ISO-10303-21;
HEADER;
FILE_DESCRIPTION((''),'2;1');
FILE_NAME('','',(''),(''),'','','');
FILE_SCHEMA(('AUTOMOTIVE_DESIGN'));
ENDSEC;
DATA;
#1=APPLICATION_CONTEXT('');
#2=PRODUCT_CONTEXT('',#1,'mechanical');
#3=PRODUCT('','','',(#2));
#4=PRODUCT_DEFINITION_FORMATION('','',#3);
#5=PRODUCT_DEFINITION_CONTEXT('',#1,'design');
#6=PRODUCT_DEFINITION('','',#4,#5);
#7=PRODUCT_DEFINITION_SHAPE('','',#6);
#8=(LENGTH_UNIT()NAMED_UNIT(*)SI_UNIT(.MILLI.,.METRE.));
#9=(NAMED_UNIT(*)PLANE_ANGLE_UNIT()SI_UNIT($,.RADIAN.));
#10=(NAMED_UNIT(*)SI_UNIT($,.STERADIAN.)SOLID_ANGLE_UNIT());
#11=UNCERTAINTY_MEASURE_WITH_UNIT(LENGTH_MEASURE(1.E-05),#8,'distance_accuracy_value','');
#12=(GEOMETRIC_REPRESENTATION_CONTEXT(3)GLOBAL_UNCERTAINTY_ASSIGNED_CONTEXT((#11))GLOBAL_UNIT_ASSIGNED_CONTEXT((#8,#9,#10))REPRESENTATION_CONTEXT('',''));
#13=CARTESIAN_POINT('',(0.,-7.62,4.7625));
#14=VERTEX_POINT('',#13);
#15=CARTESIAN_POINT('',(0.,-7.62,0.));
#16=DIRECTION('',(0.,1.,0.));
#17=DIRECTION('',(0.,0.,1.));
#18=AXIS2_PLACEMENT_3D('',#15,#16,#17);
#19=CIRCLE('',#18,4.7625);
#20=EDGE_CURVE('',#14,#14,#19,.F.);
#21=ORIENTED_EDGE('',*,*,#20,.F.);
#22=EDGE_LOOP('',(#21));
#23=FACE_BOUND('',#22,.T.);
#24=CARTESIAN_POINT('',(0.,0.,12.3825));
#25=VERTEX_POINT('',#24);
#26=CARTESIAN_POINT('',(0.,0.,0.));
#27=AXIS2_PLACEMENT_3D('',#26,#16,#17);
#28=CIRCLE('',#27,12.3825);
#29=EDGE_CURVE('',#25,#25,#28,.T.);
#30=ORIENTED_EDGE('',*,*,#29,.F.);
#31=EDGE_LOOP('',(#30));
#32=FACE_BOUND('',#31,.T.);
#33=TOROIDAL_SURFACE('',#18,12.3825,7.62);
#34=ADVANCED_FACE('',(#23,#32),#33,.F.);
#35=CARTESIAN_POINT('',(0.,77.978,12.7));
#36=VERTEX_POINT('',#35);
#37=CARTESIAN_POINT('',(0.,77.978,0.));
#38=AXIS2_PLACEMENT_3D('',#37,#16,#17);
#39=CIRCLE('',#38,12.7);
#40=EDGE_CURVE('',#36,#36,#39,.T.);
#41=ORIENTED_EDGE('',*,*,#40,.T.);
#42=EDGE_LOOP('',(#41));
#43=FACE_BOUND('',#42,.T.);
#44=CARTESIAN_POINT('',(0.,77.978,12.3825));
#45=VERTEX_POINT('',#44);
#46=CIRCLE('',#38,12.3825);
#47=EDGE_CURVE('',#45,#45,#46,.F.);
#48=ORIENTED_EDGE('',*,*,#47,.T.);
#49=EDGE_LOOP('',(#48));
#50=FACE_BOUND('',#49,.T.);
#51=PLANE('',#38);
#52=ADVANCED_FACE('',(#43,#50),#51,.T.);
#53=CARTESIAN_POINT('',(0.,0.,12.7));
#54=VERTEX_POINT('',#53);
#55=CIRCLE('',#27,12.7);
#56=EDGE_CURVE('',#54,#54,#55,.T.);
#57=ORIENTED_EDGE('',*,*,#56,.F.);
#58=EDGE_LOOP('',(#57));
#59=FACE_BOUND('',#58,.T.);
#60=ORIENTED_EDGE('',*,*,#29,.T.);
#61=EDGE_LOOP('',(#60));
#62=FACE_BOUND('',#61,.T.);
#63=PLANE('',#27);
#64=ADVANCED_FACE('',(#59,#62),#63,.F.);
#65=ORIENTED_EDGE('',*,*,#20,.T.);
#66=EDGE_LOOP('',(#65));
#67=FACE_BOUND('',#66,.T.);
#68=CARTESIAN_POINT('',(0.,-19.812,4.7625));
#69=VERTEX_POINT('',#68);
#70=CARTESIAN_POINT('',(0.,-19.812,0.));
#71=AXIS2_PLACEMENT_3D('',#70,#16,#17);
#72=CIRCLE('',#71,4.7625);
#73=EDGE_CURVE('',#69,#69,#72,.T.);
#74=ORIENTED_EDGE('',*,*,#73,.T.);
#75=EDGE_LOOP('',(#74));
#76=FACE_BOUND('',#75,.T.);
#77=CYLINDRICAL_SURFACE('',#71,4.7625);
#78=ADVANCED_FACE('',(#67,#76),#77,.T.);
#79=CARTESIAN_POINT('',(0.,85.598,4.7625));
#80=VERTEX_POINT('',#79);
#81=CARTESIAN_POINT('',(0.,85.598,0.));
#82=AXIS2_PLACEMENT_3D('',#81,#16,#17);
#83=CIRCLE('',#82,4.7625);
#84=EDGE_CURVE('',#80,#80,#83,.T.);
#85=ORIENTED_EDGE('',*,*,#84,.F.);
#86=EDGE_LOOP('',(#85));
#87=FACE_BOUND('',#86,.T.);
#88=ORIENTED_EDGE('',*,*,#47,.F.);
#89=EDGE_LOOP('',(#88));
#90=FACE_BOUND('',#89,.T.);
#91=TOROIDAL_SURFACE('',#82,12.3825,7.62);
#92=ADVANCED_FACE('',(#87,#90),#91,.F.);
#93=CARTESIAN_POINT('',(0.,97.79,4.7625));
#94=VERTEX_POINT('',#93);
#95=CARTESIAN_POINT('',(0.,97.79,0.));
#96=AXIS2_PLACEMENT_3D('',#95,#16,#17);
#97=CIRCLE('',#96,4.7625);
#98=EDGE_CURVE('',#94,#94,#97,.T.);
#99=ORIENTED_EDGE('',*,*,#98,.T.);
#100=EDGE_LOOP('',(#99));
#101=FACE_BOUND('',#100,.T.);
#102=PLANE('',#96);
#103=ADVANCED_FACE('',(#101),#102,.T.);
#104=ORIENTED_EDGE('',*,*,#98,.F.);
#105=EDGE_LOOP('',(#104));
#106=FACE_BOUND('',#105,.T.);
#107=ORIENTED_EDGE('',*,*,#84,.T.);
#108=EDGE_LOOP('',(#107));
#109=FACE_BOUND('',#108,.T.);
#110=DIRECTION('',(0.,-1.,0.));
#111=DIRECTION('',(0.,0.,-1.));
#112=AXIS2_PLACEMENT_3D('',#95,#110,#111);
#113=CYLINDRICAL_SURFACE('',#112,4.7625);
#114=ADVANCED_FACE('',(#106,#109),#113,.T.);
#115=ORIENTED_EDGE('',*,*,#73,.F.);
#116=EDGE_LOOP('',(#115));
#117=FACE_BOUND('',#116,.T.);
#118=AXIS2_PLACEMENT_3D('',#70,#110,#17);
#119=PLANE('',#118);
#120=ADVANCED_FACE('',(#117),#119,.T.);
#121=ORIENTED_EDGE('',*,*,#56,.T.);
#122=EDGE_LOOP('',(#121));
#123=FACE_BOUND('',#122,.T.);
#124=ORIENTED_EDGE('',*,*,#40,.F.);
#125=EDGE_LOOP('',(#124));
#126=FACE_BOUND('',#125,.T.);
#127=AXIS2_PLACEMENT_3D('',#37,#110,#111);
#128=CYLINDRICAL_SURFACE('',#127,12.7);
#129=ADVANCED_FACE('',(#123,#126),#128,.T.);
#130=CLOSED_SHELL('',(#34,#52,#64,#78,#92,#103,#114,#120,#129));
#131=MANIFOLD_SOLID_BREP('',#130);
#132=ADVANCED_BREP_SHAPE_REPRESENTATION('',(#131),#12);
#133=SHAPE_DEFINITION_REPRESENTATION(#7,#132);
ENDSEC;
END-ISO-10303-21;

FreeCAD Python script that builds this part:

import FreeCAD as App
import Part
import Sketcher
from FreeCAD import Vector
Q = App.Units.Quantity


def edges_at(feature, points):
    """Names of the edges that pass closest to the given points."""
    edges = feature.Shape.Edges
    near = lambda p: min(range(len(edges)), key=lambda i: edges[i].distToShape(Part.Vertex(*p))[0])
    return sorted({f"Edge{near(p) + 1}" for p in points})

doc = App.newDocument("Part")
body = doc.addObject("PartDesign::Body", "Body")

sketch1 = body.newObject("Sketcher::SketchObject", "Sketch")
sketch1.AttachmentSupport = (doc.getObject("XZ_Plane"), [""])
sketch1.MapMode = "FlatFace"
sketch1.addGeometry(Part.Circle(Vector(0, 0, 0), Vector(0, 0, 1), 12.7), False)
sketch1.addConstraint(Sketcher.Constraint("Coincident", 0, 3, -1, 1))
sketch1.addConstraint(Sketcher.Constraint("Diameter", 0, Q("1 in")))
pad1 = body.newObject("PartDesign::Pad", "Pad")
pad1.Profile = sketch1
pad1.Length = Q("3.07 in")
pad1.Reversed = True

sketch2 = body.newObject("Sketcher::SketchObject", "Sketch001")
sketch2.AttachmentSupport = (doc.getObject("XZ_Plane"), [""])
sketch2.MapMode = "FlatFace"
sketch2.AttachmentOffset = App.Placement(Vector(0, 0, -3.07 * 25.4), App.Rotation())
sketch2.addGeometry(Part.Circle(Vector(0, 0, 0), Vector(0, 0, 1), 4.7625), False)
sketch2.addConstraint(Sketcher.Constraint("Coincident", 0, 3, -1, 1))
sketch2.addConstraint(Sketcher.Constraint("Diameter", 0, Q("0.375 in")))
pad2 = body.newObject("PartDesign::Pad", "Pad001")
pad2.Profile = sketch2
pad2.Length = Q("0.78 in")
pad2.Reversed = True
doc.recompute()

datumplane = body.newObject("PartDesign::Plane", "DatumPlane")
datumplane.AttachmentSupport = (doc.getObject("XZ_Plane"), [""])
datumplane.MapMode = "FlatFace"
datumplane.AttachmentOffset = App.Placement(Vector(0, 0, -1.535 * 25.4), App.Rotation())
mirrored = body.newObject("PartDesign::Mirrored", "Mirrored")
mirrored.Originals = [pad2]
mirrored.MirrorPlane = (datumplane, [""])
body.Tip = mirrored
doc.recompute()

fillet = body.newObject("PartDesign::Fillet", "Fillet")
fillet.Base = (mirrored, edges_at(mirrored, [(0, 0, -4.763), (0, 77.978, -4.763)]))
fillet.Radius = Q("0.3 in")

doc.recompute()
